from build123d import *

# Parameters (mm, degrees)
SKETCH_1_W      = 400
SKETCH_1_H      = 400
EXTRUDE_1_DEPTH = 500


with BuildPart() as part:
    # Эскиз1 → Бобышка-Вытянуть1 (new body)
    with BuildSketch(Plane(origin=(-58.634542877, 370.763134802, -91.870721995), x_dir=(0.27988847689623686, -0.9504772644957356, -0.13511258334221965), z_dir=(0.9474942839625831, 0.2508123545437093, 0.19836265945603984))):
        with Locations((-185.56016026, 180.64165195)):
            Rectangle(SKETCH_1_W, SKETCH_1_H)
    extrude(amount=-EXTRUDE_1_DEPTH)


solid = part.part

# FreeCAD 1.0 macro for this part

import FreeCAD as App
import Part
import Sketcher

V = App.Vector
Q = App.Units.Quantity

doc = App.newDocument("Part")
params = doc.addObject("Spreadsheet::Sheet", "Params")
for row, (alias, value) in enumerate([
    ("sketch1_width", "400 mm"),
    ("pad1_length", "500 mm"),
], start=1):
    params.set(f"A{row}", alias)
    params.set(f"B{row}", "=" + value)
    params.setAlias(f"B{row}", alias)

body = doc.addObject("PartDesign::Body", "Body")

# Sketch on an angled plane
sketch1 = doc.addObject("Sketcher::SketchObject", "Sketch")
body.addObject(sketch1)
sketch1.Placement = App.Placement(V(-58.634543, 370.763135, -91.870722), App.Rotation(V(0.279888477, -0.950477264, -0.135112583), V(0.154651292, 0.183537823, -0.970771263), V(0.947494284, 0.250812355, 0.198362659), "ZXY"))
sketch1.addGeometry([
    Part.LineSegment(V(-386, 381, 0), V(-386, -19, 0)),
    Part.LineSegment(V(-386, -19, 0), V(14, -19, 0)),
    Part.LineSegment(V(14, -19, 0), V(14, 381, 0)),
    Part.LineSegment(V(14, 381, 0), V(-386, 381, 0)),
], False)
sketch1.addConstraint([
    Sketcher.Constraint("Coincident", 0, 2, 1, 1),
    Sketcher.Constraint("Coincident", 1, 2, 2, 1),
    Sketcher.Constraint("Coincident", 2, 2, 3, 1),
    Sketcher.Constraint("Coincident", 3, 2, 0, 1),
    Sketcher.Constraint("Vertical", 0),
    Sketcher.Constraint("Horizontal", 1),
    Sketcher.Constraint("Vertical", 2),
    Sketcher.Constraint("Horizontal", 3),
    Sketcher.Constraint("Equal", 3, 0),
    Sketcher.Constraint("DistanceX", 1, 1, 1, 2, Q("400 mm")),
    Sketcher.Constraint("DistanceX", 0, 2, -1, 1, Q("385.56016 mm")),
    Sketcher.Constraint("DistanceY", 0, 2, -1, 1, Q("19.358348 mm")),
])
sketch1.setExpression("Constraints[9]", "Params.sketch1_width")
pad1 = doc.addObject("PartDesign::Pad", "Pad")
body.addObject(pad1)
pad1.Profile = sketch1
pad1.setExpression("Length", "Params.pad1_length")
pad1.Reversed = True

doc.recompute()
